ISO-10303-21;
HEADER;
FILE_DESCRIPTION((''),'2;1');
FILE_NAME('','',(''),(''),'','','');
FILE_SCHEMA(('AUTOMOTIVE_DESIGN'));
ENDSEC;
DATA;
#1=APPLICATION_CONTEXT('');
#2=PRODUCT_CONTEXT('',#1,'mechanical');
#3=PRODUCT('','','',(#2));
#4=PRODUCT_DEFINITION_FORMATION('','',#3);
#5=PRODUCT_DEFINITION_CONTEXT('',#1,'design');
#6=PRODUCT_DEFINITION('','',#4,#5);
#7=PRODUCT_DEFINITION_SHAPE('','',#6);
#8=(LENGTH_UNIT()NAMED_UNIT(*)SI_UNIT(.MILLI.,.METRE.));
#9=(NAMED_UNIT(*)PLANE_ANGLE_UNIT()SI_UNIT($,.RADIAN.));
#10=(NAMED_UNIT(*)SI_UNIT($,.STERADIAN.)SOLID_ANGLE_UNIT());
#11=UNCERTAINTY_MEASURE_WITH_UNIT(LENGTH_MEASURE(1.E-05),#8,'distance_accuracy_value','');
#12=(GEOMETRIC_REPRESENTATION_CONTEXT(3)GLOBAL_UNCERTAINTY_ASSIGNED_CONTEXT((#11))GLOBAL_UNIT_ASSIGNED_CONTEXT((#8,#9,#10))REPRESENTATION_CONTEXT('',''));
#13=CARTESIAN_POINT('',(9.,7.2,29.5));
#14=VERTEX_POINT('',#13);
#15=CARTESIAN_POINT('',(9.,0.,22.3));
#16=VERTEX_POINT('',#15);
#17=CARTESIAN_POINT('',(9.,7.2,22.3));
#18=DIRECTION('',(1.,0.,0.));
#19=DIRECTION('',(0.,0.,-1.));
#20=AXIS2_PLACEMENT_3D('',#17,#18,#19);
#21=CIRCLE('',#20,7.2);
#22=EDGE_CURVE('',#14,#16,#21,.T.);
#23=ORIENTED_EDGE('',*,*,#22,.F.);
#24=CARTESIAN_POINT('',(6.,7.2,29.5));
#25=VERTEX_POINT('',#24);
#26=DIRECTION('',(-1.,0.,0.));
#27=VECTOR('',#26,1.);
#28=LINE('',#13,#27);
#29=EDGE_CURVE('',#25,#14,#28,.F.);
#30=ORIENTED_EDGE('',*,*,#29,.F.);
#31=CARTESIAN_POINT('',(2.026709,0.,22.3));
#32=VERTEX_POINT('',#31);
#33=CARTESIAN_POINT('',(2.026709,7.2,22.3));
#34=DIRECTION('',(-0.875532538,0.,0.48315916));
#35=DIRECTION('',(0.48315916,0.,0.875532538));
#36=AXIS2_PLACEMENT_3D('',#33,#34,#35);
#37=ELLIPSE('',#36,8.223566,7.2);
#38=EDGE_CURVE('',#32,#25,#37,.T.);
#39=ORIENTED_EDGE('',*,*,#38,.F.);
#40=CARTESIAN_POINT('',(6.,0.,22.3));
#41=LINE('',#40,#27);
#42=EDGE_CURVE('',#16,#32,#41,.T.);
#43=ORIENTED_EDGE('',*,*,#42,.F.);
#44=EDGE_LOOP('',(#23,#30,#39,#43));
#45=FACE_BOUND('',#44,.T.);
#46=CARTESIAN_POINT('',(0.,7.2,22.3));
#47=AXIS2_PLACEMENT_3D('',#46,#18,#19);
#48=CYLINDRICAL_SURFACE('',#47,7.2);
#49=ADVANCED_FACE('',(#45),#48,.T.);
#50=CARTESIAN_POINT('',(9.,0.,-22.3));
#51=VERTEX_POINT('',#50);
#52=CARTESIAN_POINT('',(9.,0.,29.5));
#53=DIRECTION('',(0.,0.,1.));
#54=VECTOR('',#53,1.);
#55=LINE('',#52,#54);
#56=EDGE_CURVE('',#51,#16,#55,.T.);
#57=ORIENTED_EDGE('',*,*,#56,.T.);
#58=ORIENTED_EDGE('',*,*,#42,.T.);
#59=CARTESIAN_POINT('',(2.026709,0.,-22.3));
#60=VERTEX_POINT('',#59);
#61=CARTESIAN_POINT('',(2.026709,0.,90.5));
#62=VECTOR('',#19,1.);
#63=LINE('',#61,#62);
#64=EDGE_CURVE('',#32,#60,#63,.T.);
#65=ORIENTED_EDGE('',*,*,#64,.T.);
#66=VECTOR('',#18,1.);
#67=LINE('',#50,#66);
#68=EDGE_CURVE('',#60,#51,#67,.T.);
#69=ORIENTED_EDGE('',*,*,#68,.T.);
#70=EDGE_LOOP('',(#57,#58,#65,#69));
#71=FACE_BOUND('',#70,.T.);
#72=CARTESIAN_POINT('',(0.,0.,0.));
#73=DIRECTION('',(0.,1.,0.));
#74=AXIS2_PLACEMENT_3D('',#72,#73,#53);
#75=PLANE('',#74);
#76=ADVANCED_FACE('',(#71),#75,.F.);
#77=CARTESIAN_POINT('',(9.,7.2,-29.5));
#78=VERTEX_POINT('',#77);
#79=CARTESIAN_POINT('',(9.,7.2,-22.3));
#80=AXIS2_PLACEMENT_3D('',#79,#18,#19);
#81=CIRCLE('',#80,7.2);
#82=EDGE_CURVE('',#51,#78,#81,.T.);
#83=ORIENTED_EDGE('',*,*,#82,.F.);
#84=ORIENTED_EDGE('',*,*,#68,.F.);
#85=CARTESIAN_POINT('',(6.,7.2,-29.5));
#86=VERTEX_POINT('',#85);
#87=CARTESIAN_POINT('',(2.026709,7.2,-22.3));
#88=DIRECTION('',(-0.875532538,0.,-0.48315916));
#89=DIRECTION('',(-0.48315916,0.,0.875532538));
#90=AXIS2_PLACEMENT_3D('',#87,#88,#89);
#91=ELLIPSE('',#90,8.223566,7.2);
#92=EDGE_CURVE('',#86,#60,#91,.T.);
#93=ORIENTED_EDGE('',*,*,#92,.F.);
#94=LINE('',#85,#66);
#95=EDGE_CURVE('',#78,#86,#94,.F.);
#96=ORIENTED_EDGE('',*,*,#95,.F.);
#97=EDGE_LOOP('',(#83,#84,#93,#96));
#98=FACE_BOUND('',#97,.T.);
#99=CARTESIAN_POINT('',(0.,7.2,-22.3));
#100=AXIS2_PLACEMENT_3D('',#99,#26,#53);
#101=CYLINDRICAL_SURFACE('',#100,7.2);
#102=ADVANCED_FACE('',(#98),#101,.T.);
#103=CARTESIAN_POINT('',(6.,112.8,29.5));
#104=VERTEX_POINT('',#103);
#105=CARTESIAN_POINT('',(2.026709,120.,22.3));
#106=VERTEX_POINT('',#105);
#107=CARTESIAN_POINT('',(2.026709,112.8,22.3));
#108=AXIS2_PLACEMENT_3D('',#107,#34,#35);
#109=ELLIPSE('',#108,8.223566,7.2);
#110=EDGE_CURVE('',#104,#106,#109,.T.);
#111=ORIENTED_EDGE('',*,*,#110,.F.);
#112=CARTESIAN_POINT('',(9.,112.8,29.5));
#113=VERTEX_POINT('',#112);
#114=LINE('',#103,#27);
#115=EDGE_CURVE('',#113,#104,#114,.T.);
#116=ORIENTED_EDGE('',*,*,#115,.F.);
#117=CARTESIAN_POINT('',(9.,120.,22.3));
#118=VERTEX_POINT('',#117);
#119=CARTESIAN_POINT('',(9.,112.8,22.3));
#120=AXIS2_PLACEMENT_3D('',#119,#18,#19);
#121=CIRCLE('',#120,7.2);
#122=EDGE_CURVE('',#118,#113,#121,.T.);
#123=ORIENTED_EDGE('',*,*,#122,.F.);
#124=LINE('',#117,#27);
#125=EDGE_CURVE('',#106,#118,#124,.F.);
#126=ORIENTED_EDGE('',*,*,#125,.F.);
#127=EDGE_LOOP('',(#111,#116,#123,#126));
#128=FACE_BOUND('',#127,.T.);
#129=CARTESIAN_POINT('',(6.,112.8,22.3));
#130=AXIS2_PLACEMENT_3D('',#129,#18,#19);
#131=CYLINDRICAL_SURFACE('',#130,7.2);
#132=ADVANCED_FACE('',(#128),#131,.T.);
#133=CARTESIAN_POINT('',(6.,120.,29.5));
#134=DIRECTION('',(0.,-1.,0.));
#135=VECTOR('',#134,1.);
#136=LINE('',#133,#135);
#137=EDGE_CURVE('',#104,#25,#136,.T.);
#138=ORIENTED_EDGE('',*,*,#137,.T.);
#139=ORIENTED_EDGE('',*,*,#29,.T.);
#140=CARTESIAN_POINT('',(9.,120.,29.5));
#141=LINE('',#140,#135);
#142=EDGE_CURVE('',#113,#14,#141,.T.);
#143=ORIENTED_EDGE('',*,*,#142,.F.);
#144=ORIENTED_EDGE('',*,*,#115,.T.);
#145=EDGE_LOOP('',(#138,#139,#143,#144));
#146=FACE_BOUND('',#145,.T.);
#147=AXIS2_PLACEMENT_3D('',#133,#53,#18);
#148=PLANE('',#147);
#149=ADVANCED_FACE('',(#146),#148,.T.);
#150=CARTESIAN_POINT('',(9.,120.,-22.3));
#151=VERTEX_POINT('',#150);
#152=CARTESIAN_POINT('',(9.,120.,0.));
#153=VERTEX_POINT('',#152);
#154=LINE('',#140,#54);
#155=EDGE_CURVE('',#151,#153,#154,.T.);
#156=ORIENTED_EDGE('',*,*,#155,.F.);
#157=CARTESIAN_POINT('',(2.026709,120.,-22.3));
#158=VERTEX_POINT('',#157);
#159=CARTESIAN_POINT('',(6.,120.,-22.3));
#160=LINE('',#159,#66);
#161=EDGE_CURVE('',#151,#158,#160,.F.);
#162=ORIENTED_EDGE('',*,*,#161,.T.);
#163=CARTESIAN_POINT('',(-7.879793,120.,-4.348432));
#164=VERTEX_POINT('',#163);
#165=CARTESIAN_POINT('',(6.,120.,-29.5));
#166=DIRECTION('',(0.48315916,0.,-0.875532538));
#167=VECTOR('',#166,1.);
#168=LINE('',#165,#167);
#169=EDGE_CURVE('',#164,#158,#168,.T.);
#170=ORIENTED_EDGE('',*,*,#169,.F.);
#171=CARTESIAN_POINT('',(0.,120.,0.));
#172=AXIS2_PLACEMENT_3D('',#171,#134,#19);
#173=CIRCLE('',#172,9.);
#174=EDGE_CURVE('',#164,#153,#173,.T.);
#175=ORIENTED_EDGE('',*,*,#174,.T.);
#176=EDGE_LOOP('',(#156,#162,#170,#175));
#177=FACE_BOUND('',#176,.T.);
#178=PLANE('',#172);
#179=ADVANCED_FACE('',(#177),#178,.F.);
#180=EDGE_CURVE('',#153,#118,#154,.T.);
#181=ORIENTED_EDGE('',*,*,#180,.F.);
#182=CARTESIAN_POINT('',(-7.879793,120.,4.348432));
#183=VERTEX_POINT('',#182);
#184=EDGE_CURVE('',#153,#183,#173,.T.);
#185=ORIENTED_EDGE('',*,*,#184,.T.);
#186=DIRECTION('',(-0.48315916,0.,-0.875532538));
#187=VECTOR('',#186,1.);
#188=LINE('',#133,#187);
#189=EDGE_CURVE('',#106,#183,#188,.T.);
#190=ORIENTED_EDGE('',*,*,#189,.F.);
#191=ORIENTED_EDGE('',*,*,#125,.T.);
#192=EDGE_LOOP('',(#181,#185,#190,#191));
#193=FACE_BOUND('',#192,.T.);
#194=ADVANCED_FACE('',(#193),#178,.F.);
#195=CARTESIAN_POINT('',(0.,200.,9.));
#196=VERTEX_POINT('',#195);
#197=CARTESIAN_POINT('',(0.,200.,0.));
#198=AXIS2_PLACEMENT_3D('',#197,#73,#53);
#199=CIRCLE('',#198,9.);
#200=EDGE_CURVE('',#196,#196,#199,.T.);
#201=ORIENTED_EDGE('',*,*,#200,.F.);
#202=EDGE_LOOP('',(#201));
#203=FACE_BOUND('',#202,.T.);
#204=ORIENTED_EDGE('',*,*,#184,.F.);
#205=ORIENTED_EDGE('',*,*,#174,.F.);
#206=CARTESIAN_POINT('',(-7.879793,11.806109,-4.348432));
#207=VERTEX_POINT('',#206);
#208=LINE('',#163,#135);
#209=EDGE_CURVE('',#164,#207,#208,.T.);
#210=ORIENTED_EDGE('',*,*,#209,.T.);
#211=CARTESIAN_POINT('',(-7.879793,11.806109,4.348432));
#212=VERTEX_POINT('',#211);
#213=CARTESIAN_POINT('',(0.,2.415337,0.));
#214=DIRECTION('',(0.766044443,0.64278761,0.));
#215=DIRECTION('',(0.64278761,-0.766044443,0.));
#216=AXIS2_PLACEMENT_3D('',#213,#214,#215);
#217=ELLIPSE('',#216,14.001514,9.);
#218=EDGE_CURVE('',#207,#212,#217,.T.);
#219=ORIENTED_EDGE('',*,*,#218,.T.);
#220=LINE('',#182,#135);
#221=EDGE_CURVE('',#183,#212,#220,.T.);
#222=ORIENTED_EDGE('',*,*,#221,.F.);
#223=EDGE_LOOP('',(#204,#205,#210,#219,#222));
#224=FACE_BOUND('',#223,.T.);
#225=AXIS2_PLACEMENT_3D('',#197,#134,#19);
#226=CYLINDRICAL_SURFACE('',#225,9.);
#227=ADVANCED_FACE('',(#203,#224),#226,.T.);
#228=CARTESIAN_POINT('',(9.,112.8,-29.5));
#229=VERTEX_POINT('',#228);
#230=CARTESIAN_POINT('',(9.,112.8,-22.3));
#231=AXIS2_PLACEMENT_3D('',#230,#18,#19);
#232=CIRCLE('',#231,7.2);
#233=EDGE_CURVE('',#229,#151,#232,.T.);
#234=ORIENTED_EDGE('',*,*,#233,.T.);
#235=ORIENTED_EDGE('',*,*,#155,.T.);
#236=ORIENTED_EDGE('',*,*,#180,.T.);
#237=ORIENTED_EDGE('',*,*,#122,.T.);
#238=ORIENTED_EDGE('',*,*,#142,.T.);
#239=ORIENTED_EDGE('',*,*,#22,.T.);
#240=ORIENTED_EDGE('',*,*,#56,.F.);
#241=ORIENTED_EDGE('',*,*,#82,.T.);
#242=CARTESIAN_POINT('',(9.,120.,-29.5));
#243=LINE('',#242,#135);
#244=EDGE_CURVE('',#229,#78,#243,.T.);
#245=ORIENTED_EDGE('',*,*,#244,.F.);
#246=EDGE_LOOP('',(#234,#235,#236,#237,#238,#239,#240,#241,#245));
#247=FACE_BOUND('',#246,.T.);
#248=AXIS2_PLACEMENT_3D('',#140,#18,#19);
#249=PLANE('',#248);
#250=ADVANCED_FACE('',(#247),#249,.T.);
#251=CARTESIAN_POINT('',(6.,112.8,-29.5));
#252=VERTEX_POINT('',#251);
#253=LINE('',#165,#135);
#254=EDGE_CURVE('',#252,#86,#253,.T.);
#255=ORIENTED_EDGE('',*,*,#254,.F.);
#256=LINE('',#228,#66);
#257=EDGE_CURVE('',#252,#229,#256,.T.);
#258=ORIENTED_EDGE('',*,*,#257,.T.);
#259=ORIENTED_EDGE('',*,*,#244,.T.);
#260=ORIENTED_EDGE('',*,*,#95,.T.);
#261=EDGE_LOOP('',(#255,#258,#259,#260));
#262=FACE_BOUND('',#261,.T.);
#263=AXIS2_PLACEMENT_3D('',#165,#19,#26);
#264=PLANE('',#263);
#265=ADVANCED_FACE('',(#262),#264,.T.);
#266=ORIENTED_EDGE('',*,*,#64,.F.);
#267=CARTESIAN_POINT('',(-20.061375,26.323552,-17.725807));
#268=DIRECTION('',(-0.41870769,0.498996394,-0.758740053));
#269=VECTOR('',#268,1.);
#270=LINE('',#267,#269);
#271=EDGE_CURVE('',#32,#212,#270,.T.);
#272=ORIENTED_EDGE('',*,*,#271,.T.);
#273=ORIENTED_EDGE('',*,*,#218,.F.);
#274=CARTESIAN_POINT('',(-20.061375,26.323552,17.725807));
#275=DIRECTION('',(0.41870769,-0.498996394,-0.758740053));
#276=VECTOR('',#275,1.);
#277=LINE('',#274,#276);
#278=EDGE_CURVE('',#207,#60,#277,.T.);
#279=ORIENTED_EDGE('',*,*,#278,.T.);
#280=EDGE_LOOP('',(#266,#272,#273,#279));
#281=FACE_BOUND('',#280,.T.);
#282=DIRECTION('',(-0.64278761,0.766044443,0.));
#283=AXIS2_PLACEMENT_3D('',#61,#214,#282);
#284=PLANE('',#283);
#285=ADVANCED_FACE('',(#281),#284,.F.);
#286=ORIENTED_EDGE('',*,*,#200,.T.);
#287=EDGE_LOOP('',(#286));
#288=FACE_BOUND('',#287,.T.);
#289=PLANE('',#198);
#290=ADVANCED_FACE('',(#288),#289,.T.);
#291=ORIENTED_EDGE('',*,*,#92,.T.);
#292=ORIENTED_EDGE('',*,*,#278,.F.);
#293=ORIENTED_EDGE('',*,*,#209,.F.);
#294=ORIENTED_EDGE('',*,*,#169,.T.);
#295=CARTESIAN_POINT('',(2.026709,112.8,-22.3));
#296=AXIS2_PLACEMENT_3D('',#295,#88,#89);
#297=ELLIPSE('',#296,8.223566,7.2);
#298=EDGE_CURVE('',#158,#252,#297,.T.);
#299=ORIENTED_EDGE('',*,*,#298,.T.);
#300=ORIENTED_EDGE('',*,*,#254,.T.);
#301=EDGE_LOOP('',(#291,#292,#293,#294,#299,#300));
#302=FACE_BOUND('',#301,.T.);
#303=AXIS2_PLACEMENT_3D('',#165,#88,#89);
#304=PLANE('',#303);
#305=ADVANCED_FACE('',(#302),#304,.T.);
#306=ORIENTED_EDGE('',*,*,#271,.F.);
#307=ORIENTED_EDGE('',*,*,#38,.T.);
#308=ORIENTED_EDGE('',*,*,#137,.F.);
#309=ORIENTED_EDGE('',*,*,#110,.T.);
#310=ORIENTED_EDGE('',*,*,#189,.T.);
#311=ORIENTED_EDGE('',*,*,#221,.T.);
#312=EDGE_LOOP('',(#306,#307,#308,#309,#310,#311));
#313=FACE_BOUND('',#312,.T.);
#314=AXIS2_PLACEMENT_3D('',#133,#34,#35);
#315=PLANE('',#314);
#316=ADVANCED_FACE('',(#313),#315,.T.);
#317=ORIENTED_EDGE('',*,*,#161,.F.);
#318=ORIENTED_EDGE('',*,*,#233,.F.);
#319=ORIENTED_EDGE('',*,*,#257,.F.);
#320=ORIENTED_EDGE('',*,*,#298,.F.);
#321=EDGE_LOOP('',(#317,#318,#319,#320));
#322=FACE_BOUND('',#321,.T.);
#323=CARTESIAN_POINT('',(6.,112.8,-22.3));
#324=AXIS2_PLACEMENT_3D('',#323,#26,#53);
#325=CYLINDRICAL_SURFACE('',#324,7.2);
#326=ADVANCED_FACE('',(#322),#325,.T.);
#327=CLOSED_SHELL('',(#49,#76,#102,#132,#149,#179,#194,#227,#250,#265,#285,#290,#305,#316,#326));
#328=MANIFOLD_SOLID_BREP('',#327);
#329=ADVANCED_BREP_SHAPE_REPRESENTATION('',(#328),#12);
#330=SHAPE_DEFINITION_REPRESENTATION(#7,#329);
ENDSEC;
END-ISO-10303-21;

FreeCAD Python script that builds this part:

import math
import FreeCAD as App
import Part
import Sketcher
Q = App.Units.Quantity


def edges_at(feature, points):
    """Names of the edges that pass closest to the given points."""
    edges = feature.Shape.Edges
    near = lambda p: min(range(len(edges)), key=lambda i: edges[i].distToShape(Part.Vertex(*p))[0])
    return sorted({f"Edge{near(p) + 1}" for p in points})


def add_polygon(sketch, points):
    """Adds a closed chain of lines whose ends are joined by coincident constraints."""
    first, n = sketch.GeometryCount, len(points)
    for a, b in zip(points, points[1:] + points[:1]):
        sketch.addGeometry(Part.LineSegment(App.Vector(*a, 0), App.Vector(*b, 0)), False)
    for i in range(n):
        sketch.addConstraint(Sketcher.Constraint("Coincident", first + i, 2, first + (i + 1) % n, 1))

doc = App.newDocument("Part")
body = doc.addObject("PartDesign::Body", "Body")

# Sketch on XZ plane
sketch1 = doc.addObject("Sketcher::SketchObject", "Sketch")
body.addObject(sketch1)
sketch1.AttachmentSupport = (doc.XZ_Plane, [""])
sketch1.MapMode = "FlatFace"
sketch1.addGeometry(Part.Circle(App.Vector(0, 0, 0), App.Vector(0, 0, 1), 9), False)
sketch1.addConstraint(Sketcher.Constraint("Coincident", 0, 3, -1, 1))
sketch1.addConstraint(Sketcher.Constraint("Diameter", 0, 18.0))
pad1 = doc.addObject("PartDesign::Pad", "Pad")
body.addObject(pad1)
pad1.Profile = sketch1
pad1.Length = 200
pad1.Reversed = True

# Sketch on XZ plane
sketch2 = doc.addObject("Sketcher::SketchObject", "Sketch001")
body.addObject(sketch2)
sketch2.AttachmentSupport = (doc.XZ_Plane, [""])
sketch2.MapMode = "FlatFace"
sketch2.addGeometry(Part.LineSegment(App.Vector(6, 29.5, 0), App.Vector(-7.9, 4.3, 0)), False)
sketch2.addGeometry(Part.ArcOfCircle(Part.Circle(App.Vector(0, 0, 0), App.Vector(0, 0, 1), 9), math.radians(151), math.radians(209)), False)
sketch2.addGeometry(Part.LineSegment(App.Vector(-7.9, -4.3, 0), App.Vector(6, -29.5, 0)), False)
sketch2.addGeometry(Part.LineSegment(App.Vector(6, -29.5, 0), App.Vector(9, -29.5, 0)), False)
sketch2.addGeometry(Part.LineSegment(App.Vector(9, -29.5, 0), App.Vector(9, 29.5, 0)), False)
sketch2.addGeometry(Part.LineSegment(App.Vector(9, 29.5, 0), App.Vector(6, 29.5, 0)), False)
sketch2.addConstraint(Sketcher.Constraint("Tangent", 0, 2, 1, 1))
sketch2.addConstraint(Sketcher.Constraint("Tangent", 1, 2, 2, 1))
sketch2.addConstraint(Sketcher.Constraint("Coincident", 2, 2, 3, 1))
sketch2.addConstraint(Sketcher.Constraint("Coincident", 3, 2, 4, 1))
sketch2.addConstraint(Sketcher.Constraint("Coincident", 4, 2, 5, 1))
sketch2.addConstraint(Sketcher.Constraint("Coincident", 5, 2, 0, 1))
sketch2.addConstraint(Sketcher.Constraint("Horizontal", 3))
sketch2.addConstraint(Sketcher.Constraint("Vertical", 4))
sketch2.addConstraint(Sketcher.Constraint("Horizontal", 5))
sketch2.addConstraint(Sketcher.Constraint("Coincident", 1, 3, -1, 1))
sketch2.addConstraint(Sketcher.Constraint("Symmetric", 2, 2, 5, 2, -1))
sketch2.addConstraint(Sketcher.Constraint("Radius", 1, 8.999999))
sketch2.addConstraint(Sketcher.Constraint("DistanceX", 3, 1, 3, 2, 3.0))
sketch2.addConstraint(Sketcher.Constraint("DistanceY", 4, 1, 4, 2, 59.0))
sketch2.addConstraint(Sketcher.Constraint("DistanceX", -1, 1, 2, 2, 6.0))
pad2 = doc.addObject("PartDesign::Pad", "Pad001")
body.addObject(pad2)
pad2.Profile = sketch2
pad2.Length = 120
pad2.Reversed = True
doc.recompute()

fillet = doc.addObject("PartDesign::Fillet", "Fillet")
body.addObject(fillet)
fillet.Base = (pad2, edges_at(pad2, [
    (7.5, 0, 29.5),
    (7.5, 120, 29.5),
    (7.5, 120, -29.5),
    (7.5, 0, -29.5),
]))
fillet.Radius = 7.2

# Sketch on XY plane
sketch3 = doc.addObject("Sketcher::SketchObject", "Sketch002")
body.addObject(sketch3)
sketch3.AttachmentSupport = (doc.XY_Plane, [""])
sketch3.MapMode = "FlatFace"
sketch3.AttachmentOffset = App.Placement(App.Vector(0, 0, -29.5), App.Rotation())
add_polygon(sketch3, [(-11, 15), (2, 0), (-13, -5)])  # lines 0-2
sketch3.addConstraint(Sketcher.Constraint("PointOnObject", 0, 2, -1))
sketch3.addConstraint(Sketcher.Constraint("Angle", 0, Q("-49.999999 deg")))
sketch3.addConstraint(Sketcher.Constraint("DistanceY", 1, 2, 2, 2, 19.659099))
sketch3.addConstraint(Sketcher.Constraint("Distance", 1, 15.61003))
sketch3.addConstraint(Sketcher.Constraint("DistanceX", -1, 1, 0, 2, 2.026709))
sketch3.addConstraint(Sketcher.Constraint("DistanceX", 1, 2, 2, 2, 2.250669))
pocket1 = doc.addObject("PartDesign::Pocket", "Pocket")
body.addObject(pocket1)
pocket1.Profile = sketch3
pocket1.Length = 120
pocket1.Reversed = True

doc.recompute()
